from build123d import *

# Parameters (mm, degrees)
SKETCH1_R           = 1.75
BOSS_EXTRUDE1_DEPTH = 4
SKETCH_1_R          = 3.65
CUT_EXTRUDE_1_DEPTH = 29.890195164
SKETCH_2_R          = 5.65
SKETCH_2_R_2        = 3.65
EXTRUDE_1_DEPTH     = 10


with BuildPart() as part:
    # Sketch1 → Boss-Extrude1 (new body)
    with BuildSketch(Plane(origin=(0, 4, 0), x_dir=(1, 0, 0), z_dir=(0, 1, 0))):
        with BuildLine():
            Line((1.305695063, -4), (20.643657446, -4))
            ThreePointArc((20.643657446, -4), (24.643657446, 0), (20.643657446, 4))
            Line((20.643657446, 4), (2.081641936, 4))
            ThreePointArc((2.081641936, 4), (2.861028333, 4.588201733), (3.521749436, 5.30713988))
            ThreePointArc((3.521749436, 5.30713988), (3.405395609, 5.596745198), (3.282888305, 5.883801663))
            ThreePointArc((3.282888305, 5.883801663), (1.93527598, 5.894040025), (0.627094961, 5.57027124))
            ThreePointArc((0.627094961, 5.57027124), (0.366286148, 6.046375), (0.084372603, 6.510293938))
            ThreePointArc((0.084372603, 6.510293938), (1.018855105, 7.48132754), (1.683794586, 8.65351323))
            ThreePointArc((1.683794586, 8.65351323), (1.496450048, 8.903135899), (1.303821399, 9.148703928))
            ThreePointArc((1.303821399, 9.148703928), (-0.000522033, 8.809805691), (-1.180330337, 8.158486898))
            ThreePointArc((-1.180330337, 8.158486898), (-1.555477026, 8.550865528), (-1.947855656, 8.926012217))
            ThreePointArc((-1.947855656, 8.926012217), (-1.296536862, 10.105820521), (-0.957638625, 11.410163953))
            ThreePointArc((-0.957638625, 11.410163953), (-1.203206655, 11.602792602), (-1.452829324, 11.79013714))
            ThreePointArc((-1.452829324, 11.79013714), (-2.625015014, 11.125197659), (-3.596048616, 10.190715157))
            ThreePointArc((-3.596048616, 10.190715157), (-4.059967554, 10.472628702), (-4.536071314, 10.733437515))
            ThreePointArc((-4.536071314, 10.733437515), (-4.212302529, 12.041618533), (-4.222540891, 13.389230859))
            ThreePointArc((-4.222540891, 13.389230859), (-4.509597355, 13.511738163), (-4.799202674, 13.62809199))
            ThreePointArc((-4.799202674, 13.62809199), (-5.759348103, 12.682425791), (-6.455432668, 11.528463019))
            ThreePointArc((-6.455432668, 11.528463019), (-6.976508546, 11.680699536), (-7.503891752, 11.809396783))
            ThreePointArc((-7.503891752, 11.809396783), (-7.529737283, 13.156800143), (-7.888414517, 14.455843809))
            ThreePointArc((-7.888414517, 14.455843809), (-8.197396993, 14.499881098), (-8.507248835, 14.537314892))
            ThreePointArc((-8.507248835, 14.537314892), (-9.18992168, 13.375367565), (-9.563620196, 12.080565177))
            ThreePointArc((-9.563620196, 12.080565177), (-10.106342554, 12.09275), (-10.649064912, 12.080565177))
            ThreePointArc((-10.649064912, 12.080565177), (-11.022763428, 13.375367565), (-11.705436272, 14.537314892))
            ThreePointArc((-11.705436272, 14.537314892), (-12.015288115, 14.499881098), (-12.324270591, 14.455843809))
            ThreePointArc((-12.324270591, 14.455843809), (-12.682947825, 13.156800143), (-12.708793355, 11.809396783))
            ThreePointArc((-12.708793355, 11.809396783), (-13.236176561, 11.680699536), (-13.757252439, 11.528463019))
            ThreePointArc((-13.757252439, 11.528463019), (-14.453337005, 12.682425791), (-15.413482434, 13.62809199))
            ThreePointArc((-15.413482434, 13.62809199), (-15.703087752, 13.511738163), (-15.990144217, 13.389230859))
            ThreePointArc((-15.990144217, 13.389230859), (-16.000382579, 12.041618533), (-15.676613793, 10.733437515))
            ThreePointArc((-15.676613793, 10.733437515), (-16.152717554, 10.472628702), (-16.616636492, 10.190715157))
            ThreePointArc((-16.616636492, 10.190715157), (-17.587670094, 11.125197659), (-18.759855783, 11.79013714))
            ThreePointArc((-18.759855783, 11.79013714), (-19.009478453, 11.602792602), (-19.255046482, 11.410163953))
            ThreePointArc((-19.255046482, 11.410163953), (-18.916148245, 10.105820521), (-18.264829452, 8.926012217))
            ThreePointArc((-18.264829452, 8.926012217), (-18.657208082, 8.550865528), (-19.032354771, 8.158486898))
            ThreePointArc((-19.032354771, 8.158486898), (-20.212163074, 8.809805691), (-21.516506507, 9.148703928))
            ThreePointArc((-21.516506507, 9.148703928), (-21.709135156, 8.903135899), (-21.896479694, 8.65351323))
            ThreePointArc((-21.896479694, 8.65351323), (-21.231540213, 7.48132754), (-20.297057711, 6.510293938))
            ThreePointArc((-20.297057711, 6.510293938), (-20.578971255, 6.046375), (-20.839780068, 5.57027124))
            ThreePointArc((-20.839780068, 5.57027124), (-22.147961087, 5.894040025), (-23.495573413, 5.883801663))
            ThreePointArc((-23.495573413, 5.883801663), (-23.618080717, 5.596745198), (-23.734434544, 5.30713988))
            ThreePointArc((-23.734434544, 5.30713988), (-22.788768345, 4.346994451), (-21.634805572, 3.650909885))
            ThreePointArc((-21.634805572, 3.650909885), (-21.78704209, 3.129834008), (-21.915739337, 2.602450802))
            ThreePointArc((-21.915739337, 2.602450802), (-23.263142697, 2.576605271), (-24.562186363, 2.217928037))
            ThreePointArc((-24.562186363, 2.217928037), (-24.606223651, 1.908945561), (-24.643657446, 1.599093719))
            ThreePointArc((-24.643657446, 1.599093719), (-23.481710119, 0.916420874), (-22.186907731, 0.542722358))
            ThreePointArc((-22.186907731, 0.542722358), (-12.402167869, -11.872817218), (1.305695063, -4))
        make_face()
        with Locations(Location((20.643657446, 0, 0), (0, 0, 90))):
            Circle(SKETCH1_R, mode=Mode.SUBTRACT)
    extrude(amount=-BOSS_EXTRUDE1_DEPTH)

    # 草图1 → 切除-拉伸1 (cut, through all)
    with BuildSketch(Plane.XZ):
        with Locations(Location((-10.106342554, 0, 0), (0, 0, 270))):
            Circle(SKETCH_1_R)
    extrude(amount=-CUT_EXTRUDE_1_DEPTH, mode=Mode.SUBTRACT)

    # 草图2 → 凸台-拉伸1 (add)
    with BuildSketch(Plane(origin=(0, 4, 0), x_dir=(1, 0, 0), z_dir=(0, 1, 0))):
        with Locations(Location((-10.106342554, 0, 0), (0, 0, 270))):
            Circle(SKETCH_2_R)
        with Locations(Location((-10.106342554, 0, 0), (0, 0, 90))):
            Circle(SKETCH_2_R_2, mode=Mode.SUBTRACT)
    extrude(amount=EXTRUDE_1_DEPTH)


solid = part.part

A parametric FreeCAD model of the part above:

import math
import FreeCAD as App
import Part
import Sketcher

V = App.Vector

doc = App.newDocument("Part")
body = doc.addObject("PartDesign::Body", "Body")

sketch1 = body.newObject("Sketcher::SketchObject", "Sketch")
sketch1.AttachmentSupport = (doc.getObject("XZ_Plane"), [""])
sketch1.MapMode = "FlatFace"
sketch1.AttachmentOffset = App.Placement(V(0, 0, -4), App.Rotation())
sketch1.addGeometry([
    Part.LineSegment(V(1.305695, 4, 0), V(20.643657, 4, 0)),
    Part.ArcOfCircle(Part.Circle(V(20.643657, 0, 0), V(0, 0, 1), 4), math.radians(-90), math.radians(90)),
    Part.LineSegment(V(20.643657, -4, 0), V(2.081642, -4, 0)),
    Part.ArcOfCircle(Part.Circle(V(-0.768289, -8.586708, 0), V(0, 0, 1), 5.4), math.radians(37.396512), math.radians(58.14543)),
    Part.ArcOfCircle(Part.Circle(V(-10.106343, 0, 0), V(0, 0, 1), 14.625), math.radians(-23.722744), math.radians(-21.277256)),
    Part.ArcOfCircle(Part.Circle(V(2.568378, -0.531281, 0), V(0, 0, 1), 5.4), math.radians(-111.069299), math.radians(-82.396512)),
    Part.ArcOfCircle(Part.Circle(V(-10.106343, 0, 0), V(0, 0, 1), 12.09275), math.radians(-32.572297), math.radians(-27.427703)),
    Part.ArcOfCircle(Part.Circle(V(-3.308879, -10.710989, 0), V(0, 0, 1), 5.4), math.radians(22.396512), math.radians(51.069299)),
    Part.ArcOfCircle(Part.Circle(V(-10.106342, 0, 0), V(0, 0, 1), 14.625), math.radians(-38.722744), math.radians(-36.277256)),
    Part.ArcOfCircle(Part.Circle(V(1.998992, -3.793637, 0), V(0, 0, 1), 5.4), math.radians(-126.069299), math.radians(-97.396512)),
    Part.ArcOfCircle(Part.Circle(V(-10.106343, 0, 0), V(0, 0, 1), 12.09275), math.radians(-47.572297), math.radians(-42.427703)),
    Part.ArcOfCircle(Part.Circle(V(-6.312705, -12.105334, 0), V(0, 0, 1), 5.4), math.radians(7.396512), math.radians(36.069299)),
    Part.ArcOfCircle(Part.Circle(V(-10.106343, 0.000001, 0), V(0, 0, 1), 14.625001), math.radians(-53.722744), math.radians(-51.277256)),
    Part.ArcOfCircle(Part.Circle(V(0.604647, -6.797463, 0), V(0, 0, 1), 5.4), math.radians(-141.069299), math.radians(-112.396512)),
    Part.ArcOfCircle(Part.Circle(V(-10.106343, 0, 0), V(0, 0, 1), 12.09275), math.radians(-62.572297), math.radians(-57.427703)),
    Part.ArcOfCircle(Part.Circle(V(-9.575061, -12.674721, 0), V(0, 0, 1), 5.4), math.radians(-7.603488), math.radians(21.069299)),
    Part.ArcOfCircle(Part.Circle(V(-10.106342, -0.000001, 0), V(0, 0, 1), 14.624999), math.radians(-68.722744), math.radians(-66.277256)),
    Part.ArcOfCircle(Part.Circle(V(-1.519634, -9.338053, 0), V(0, 0, 1), 5.4), math.radians(-156.069299), math.radians(-127.396512)),
    Part.ArcOfCircle(Part.Circle(V(-10.106343, 0, 0), V(0, 0, 1), 12.09275), math.radians(-77.572297), math.radians(-72.427703)),
    Part.ArcOfCircle(Part.Circle(V(-12.873623, -12.380346, 0), V(0, 0, 1), 5.4), math.radians(-22.603488), math.radians(6.069299)),
    Part.ArcOfCircle(Part.Circle(V(-10.106342, -0.000002, 0), V(0, 0, 1), 14.624998), math.radians(-83.722744), math.radians(-81.277256)),
    Part.ArcOfCircle(Part.Circle(V(-4.229085, -11.242271, 0), V(0, 0, 1), 5.4), math.radians(-171.069299), math.radians(-142.396512)),
    Part.ArcOfCircle(Part.Circle(V(-10.106343, 0, 0), V(0, 0, 1), 12.09275), math.radians(-92.572297), math.radians(-87.427703)),
    Part.ArcOfCircle(Part.Circle(V(-15.9836, -11.242271, 0), V(0, 0, 1), 5.4), math.radians(-37.603488), math.radians(-8.930701)),
    Part.ArcOfCircle(Part.Circle(V(-10.106343, -0.000002, 0), V(0, 0, 1), 14.624998), math.radians(-98.722744), math.radians(-96.277256)),
    Part.ArcOfCircle(Part.Circle(V(-7.339062, -12.380346, 0), V(0, 0, 1), 5.4), math.radians(173.930701), math.radians(202.603488)),
    Part.ArcOfCircle(Part.Circle(V(-10.106343, 0, 0), V(0, 0, 1), 12.09275), math.radians(-107.572297), math.radians(-102.427703)),
    Part.ArcOfCircle(Part.Circle(V(-18.693051, -9.338053, 0), V(0, 0, 1), 5.4), math.radians(-52.603488), math.radians(-23.930701)),
    Part.ArcOfCircle(Part.Circle(V(-10.106342, 0, 0), V(0, 0, 1), 14.625), math.radians(-113.722744), math.radians(-111.277256)),
    Part.ArcOfCircle(Part.Circle(V(-10.637624, -12.674721, 0), V(0, 0, 1), 5.4), math.radians(158.930701), math.radians(187.603488)),
    Part.ArcOfCircle(Part.Circle(V(-10.106343, 0, 0), V(0, 0, 1), 12.09275), math.radians(-122.572297), math.radians(-117.427703)),
    Part.ArcOfCircle(Part.Circle(V(-20.817332, -6.797463, 0), V(0, 0, 1), 5.4), math.radians(-67.603488), math.radians(-38.930701)),
    Part.ArcOfCircle(Part.Circle(V(-10.106344, -0.000001, 0), V(0, 0, 1), 14.624998), math.radians(-128.722744), math.radians(-126.277256)),
    Part.ArcOfCircle(Part.Circle(V(-13.89998, -12.105334, 0), V(0, 0, 1), 5.4), math.radians(143.930701), math.radians(172.603488)),
    Part.ArcOfCircle(Part.Circle(V(-10.106342, 0, 0), V(0, 0, 1), 12.09275), math.radians(-137.572297), math.radians(-132.427703)),
    Part.ArcOfCircle(Part.Circle(V(-22.211677, -3.793637, 0), V(0, 0, 1), 5.4), math.radians(-82.603488), math.radians(-53.930701)),
    Part.ArcOfCircle(Part.Circle(V(-10.106343, 0, 0), V(0, 0, 1), 14.625), math.radians(-143.722744), math.radians(-141.277256)),
    Part.ArcOfCircle(Part.Circle(V(-16.903806, -10.710989, 0), V(0, 0, 1), 5.4), math.radians(128.930701), math.radians(157.603488)),
    Part.ArcOfCircle(Part.Circle(V(-10.106342, 0, 0), V(0, 0, 1), 12.092751), math.radians(-152.572297), math.radians(-147.427703)),
    Part.ArcOfCircle(Part.Circle(V(-22.781063, -0.531281, 0), V(0, 0, 1), 5.4), math.radians(-97.603488), math.radians(-68.930701)),
    Part.ArcOfCircle(Part.Circle(V(-10.106342, 0, 0), V(0, 0, 1), 14.625), math.radians(-158.722744), math.radians(-156.277256)),
    Part.ArcOfCircle(Part.Circle(V(-19.444396, -8.586708, 0), V(0, 0, 1), 5.4), math.radians(113.930701), math.radians(142.603488)),
    Part.ArcOfCircle(Part.Circle(V(-10.106343, 0, 0), V(0, 0, 1), 12.092749), math.radians(-167.572297), math.radians(-162.427702)),
    Part.ArcOfCircle(Part.Circle(V(-22.486688, 2.767281, 0), V(0, 0, 1), 5.4), math.radians(-112.603488), math.radians(-83.930701)),
    Part.ArcOfCircle(Part.Circle(V(-10.10634, 0, 0), V(0, 0, 1), 14.625003), math.radians(-173.722744), math.radians(-171.277256)),
    Part.ArcOfCircle(Part.Circle(V(-21.348613, -5.877257, 0), V(0, 0, 1), 5.4), math.radians(98.930701), math.radians(127.603488)),
    Part.ArcOfCircle(Part.Circle(V(-10.106343, 0, 0), V(0, 0, 1), 12.09275), math.radians(19.315925), math.radians(182.572297)),
    Part.Circle(V(20.643657, 0, 0), V(0, 0, 1), 1.75),
], False)
sketch1.addConstraint([
    Sketcher.Constraint("Coincident", 0, 2, 1, 2),
    Sketcher.Constraint("Coincident", 1, 1, 2, 1),
    Sketcher.Constraint("Coincident", 2, 2, 3, 2),
    Sketcher.Constraint("Coincident", 3, 1, 4, 2),
    Sketcher.Constraint("Coincident", 4, 1, 5, 2),
    Sketcher.Constraint("Coincident", 5, 1, 6, 2),
    Sketcher.Constraint("Coincident", 6, 1, 7, 2),
    Sketcher.Constraint("Coincident", 7, 1, 8, 2),
    Sketcher.Constraint("Coincident", 8, 1, 9, 2),
    Sketcher.Constraint("Coincident", 9, 1, 10, 2),
    Sketcher.Constraint("Coincident", 10, 1, 11, 2),
    Sketcher.Constraint("Coincident", 11, 1, 12, 2),
    Sketcher.Constraint("Coincident", 12, 1, 13, 2),
    Sketcher.Constraint("Coincident", 13, 1, 14, 2),
    Sketcher.Constraint("Coincident", 14, 1, 15, 2),
    Sketcher.Constraint("Coincident", 15, 1, 16, 2),
    Sketcher.Constraint("Coincident", 16, 1, 17, 2),
    Sketcher.Constraint("Coincident", 17, 1, 18, 2),
    Sketcher.Constraint("Coincident", 18, 1, 19, 2),
    Sketcher.Constraint("Coincident", 19, 1, 20, 2),
    Sketcher.Constraint("Coincident", 20, 1, 21, 2),
    Sketcher.Constraint("Coincident", 21, 1, 22, 2),
    Sketcher.Constraint("Coincident", 22, 1, 23, 2),
    Sketcher.Constraint("Coincident", 23, 1, 24, 2),
    Sketcher.Constraint("Coincident", 24, 1, 25, 2),
    Sketcher.Constraint("Coincident", 25, 1, 26, 2),
    Sketcher.Constraint("Coincident", 26, 1, 27, 2),
    Sketcher.Constraint("Coincident", 27, 1, 28, 2),
    Sketcher.Constraint("Coincident", 28, 1, 29, 2),
    Sketcher.Constraint("Coincident", 29, 1, 30, 2),
    Sketcher.Constraint("Coincident", 30, 1, 31, 2),
    Sketcher.Constraint("Coincident", 31, 1, 32, 2),
    Sketcher.Constraint("Coincident", 32, 1, 33, 2),
    Sketcher.Constraint("Coincident", 33, 1, 34, 2),
    Sketcher.Constraint("Coincident", 34, 1, 35, 2),
    Sketcher.Constraint("Coincident", 35, 1, 36, 2),
    Sketcher.Constraint("Coincident", 36, 1, 37, 2),
    Sketcher.Constraint("Coincident", 37, 1, 38, 2),
    Sketcher.Constraint("Coincident", 38, 1, 39, 2),
    Sketcher.Constraint("Coincident", 39, 1, 40, 2),
    Sketcher.Constraint("Coincident", 40, 1, 41, 2),
    Sketcher.Constraint("Coincident", 41, 1, 42, 2),
    Sketcher.Constraint("Coincident", 42, 1, 43, 2),
    Sketcher.Constraint("Coincident", 43, 1, 44, 2),
    Sketcher.Constraint("Coincident", 44, 1, 45, 2),
    Sketcher.Constraint("Coincident", 45, 1, 46, 2),
    Sketcher.Constraint("Coincident", 46, 1, 0, 1),
    Sketcher.Constraint("Horizontal", 0),
    Sketcher.Constraint("Horizontal", 2),
    Sketcher.Constraint("Coincident", 6, 3, 4, 3),
    Sketcher.Constraint("Coincident", 8, 3, 4, 3),
    Sketcher.Constraint("Coincident", 10, 3, 4, 3),
    Sketcher.Constraint("Coincident", 12, 3, 4, 3),
    Sketcher.Constraint("Coincident", 14, 3, 4, 3),
    Sketcher.Constraint("Coincident", 16, 3, 4, 3),
    Sketcher.Constraint("Coincident", 18, 3, 4, 3),
    Sketcher.Constraint("Coincident", 20, 3, 4, 3),
    Sketcher.Constraint("Coincident", 22, 3, 4, 3),
    Sketcher.Constraint("Coincident", 24, 3, 4, 3),
    Sketcher.Constraint("Coincident", 26, 3, 4, 3),
    Sketcher.Constraint("Coincident", 28, 3, 4, 3),
    Sketcher.Constraint("Coincident", 30, 3, 4, 3),
    Sketcher.Constraint("Coincident", 32, 3, 4, 3),
    Sketcher.Constraint("Coincident", 34, 3, 4, 3),
    Sketcher.Constraint("Coincident", 36, 3, 4, 3),
    Sketcher.Constraint("Coincident", 38, 3, 4, 3),
    Sketcher.Constraint("Coincident", 40, 3, 4, 3),
    Sketcher.Constraint("Coincident", 42, 3, 4, 3),
    Sketcher.Constraint("Coincident", 44, 3, 4, 3),
    Sketcher.Constraint("Coincident", 46, 3, 4, 3),
    Sketcher.Constraint("Coincident", 47, 3, 1, 3),
    Sketcher.Constraint("PointOnObject", 1, 3, -1),
    Sketcher.Constraint("PointOnObject", 4, 3, -1),
    Sketcher.Constraint("Radius", 1, 4.0),
    Sketcher.Constraint("Diameter", 47, 3.5),
    Sketcher.Constraint("Radius", 3, 5.4),
    Sketcher.Constraint("Radius", 5, 5.4),
    Sketcher.Constraint("Radius", 7, 5.4),
    Sketcher.Constraint("Radius", 9, 5.4),
    Sketcher.Constraint("Radius", 11, 5.4),
    Sketcher.Constraint("Radius", 13, 5.4),
    Sketcher.Constraint("Radius", 15, 5.4),
    Sketcher.Constraint("Radius", 17, 5.4),
    Sketcher.Constraint("Radius", 19, 5.4),
    Sketcher.Constraint("Radius", 21, 5.4),
    Sketcher.Constraint("Radius", 23, 5.4),
    Sketcher.Constraint("Radius", 25, 5.4),
    Sketcher.Constraint("Radius", 27, 5.4),
    Sketcher.Constraint("Radius", 29, 5.4),
    Sketcher.Constraint("Radius", 31, 5.4),
    Sketcher.Constraint("Radius", 33, 5.4),
    Sketcher.Constraint("Radius", 35, 5.4),
    Sketcher.Constraint("Radius", 37, 5.4),
    Sketcher.Constraint("Radius", 39, 5.4),
    Sketcher.Constraint("Radius", 41, 5.4),
    Sketcher.Constraint("Radius", 43, 5.4),
    Sketcher.Constraint("Radius", 45, 5.4),
    Sketcher.Constraint("Radius", 4, 14.625),
    Sketcher.Constraint("Radius", 8, 14.625),
    Sketcher.Constraint("Radius", 12, 14.625001),
    Sketcher.Constraint("Radius", 16, 14.624999),
    Sketcher.Constraint("Radius", 20, 14.624998),
    Sketcher.Constraint("Radius", 24, 14.624998),
    Sketcher.Constraint("Radius", 28, 14.625),
    Sketcher.Constraint("Radius", 32, 14.624998),
    Sketcher.Constraint("Radius", 36, 14.625),
    Sketcher.Constraint("Radius", 40, 14.625),
    Sketcher.Constraint("Radius", 6, 12.09275),
    Sketcher.Constraint("Radius", 10, 12.09275),
    Sketcher.Constraint("Radius", 14, 12.09275),
    Sketcher.Constraint("Radius", 18, 12.09275),
    Sketcher.Constraint("Radius", 22, 12.09275),
    Sketcher.Constraint("Radius", 26, 12.09275),
    Sketcher.Constraint("Radius", 30, 12.09275),
    Sketcher.Constraint("Radius", 34, 12.09275),
    Sketcher.Constraint("Radius", 38, 12.092751),
    Sketcher.Constraint("Radius", 42, 12.092749),
    Sketcher.Constraint("Radius", 46, 12.09275),
    Sketcher.Constraint("Radius", 44, 14.625003),
    Sketcher.Constraint("DistanceX", 23, 3, -1, 1, 15.9836),
    Sketcher.Constraint("DistanceY", 4, 1, -1, 1, 5.883802),
    Sketcher.Constraint("DistanceY", 39, 1, -1, 1, 5.883802),
    Sketcher.Constraint("DistanceX", 0, 1, 0, 2, 19.337962),
    Sketcher.Constraint("DistanceX", 2, 2, 2, 1, 18.562016),
    Sketcher.Constraint("DistanceX", 3, 3, -1, 1, 0.768289),
    Sketcher.Constraint("DistanceY", 3, 3, -1, 1, 8.586708),
    Sketcher.Constraint("DistanceY", 5, 3, -1, 1, 0.531281),
    Sketcher.Constraint("DistanceX", 7, 3, -1, 1, 3.308879),
    Sketcher.Constraint("DistanceY", 7, 3, -1, 1, 10.710989),
    Sketcher.Constraint("DistanceX", -1, 1, 9, 3, 1.998992),
    Sketcher.Constraint("DistanceX", 15, 3, -1, 1, 9.575061),
    Sketcher.Constraint("DistanceY", 15, 3, -1, 1, 12.674721),
    Sketcher.Constraint("DistanceY", 21, 3, -1, 1, 11.242271),
    Sketcher.Constraint("DistanceY", 23, 3, -1, 1, 11.242271),
    Sketcher.Constraint("DistanceX", 25, 3, -1, 1, 7.339062),
    Sketcher.Constraint("DistanceX", 27, 3, -1, 1, 18.693051),
    Sketcher.Constraint("DistanceY", 29, 3, -1, 1, 12.674721),
    Sketcher.Constraint("DistanceX", 31, 3, -1, 1, 20.817332),
    Sketcher.Constraint("DistanceX", 33, 3, -1, 1, 13.89998),
    Sketcher.Constraint("DistanceY", 37, 3, -1, 1, 10.710989),
    Sketcher.Constraint("DistanceY", 39, 3, -1, 1, 0.531281),
    Sketcher.Constraint("DistanceY", 41, 3, -1, 1, 8.586708),
    Sketcher.Constraint("DistanceX", 43, 3, -1, 1, 22.486688),
    Sketcher.Constraint("DistanceY", -1, 1, 43, 3, 2.767281),
    Sketcher.Constraint("DistanceX", 44, 3, -1, 1, 10.10634),
    Sketcher.Constraint("DistanceX", -1, 1, 8, 1, 1.303821),
    Sketcher.Constraint("DistanceX", 11, 1, -1, 1, 0.957639),
    Sketcher.Constraint("DistanceX", 12, 1, -1, 1, 1.452829),
    Sketcher.Constraint("DistanceX", 13, 1, -1, 1, 3.596049),
    Sketcher.Constraint("DistanceY", 16, 1, -1, 1, 13.628092),
    Sketcher.Constraint("DistanceX", 18, 1, -1, 1, 7.503892),
    Sketcher.Constraint("DistanceX", 20, 1, -1, 1, 8.507249),
    Sketcher.Constraint("DistanceX", 24, 1, -1, 1, 12.324271),
    Sketcher.Constraint("DistanceY", 27, 1, -1, 1, 13.628092),
    Sketcher.Constraint("DistanceY", 28, 1, -1, 1, 13.389231),
    Sketcher.Constraint("DistanceX", 33, 1, -1, 1, 18.264829),
    Sketcher.Constraint("DistanceX", 36, 1, -1, 1, 21.89648),
    Sketcher.Constraint("DistanceY", 40, 1, -1, 1, 5.30714),
    Sketcher.Constraint("DistanceX", -1, 1, 1, 3, 20.643657),
    Sketcher.Constraint("DistanceX", 11, 3, -1, 1, 6.312705),
    Sketcher.Constraint("DistanceX", 17, 3, -1, 1, 1.519634),
    Sketcher.Constraint("DistanceX", 19, 3, -1, 1, 12.873623),
    Sketcher.Constraint("DistanceY", 31, 3, -1, 1, 6.797463),
    Sketcher.Constraint("DistanceX", 35, 3, -1, 1, 22.211677),
    Sketcher.Constraint("DistanceY", 35, 3, -1, 1, 3.793637),
    Sketcher.Constraint("DistanceX", 45, 3, -1, 1, 21.348613),
    Sketcher.Constraint("DistanceY", 45, 3, -1, 1, 5.877257),
])
pad1 = body.newObject("PartDesign::Pad", "Pad")
pad1.Profile = sketch1
pad1.Length = 4

sketch2 = body.newObject("Sketcher::SketchObject", "Sketch001")
sketch2.AttachmentSupport = (doc.getObject("XZ_Plane"), [""])
sketch2.MapMode = "FlatFace"
sketch2.addGeometry(Part.Circle(V(-10.1, 0, 0), V(0, 0, 1), 3.6), False)
sketch2.addConstraint([
    Sketcher.Constraint("PointOnObject", 0, 3, -1),
    Sketcher.Constraint("Diameter", 0, 7.3),
    Sketcher.Constraint("DistanceX", 0, 3, -1, 1, 10.106343),
])
pocket1 = body.newObject("PartDesign::Pocket", "Pocket")
pocket1.Profile = sketch2
pocket1.Type = "ThroughAll"

sketch3 = body.newObject("Sketcher::SketchObject", "Sketch002")
sketch3.AttachmentSupport = (doc.getObject("XZ_Plane"), [""])
sketch3.MapMode = "FlatFace"
sketch3.AttachmentOffset = App.Placement(V(0, 0, -4), App.Rotation())
sketch3.addGeometry([
    Part.Circle(V(-10.1, 0, 0), V(0, 0, 1), 5.7),
    Part.Circle(V(-10.1, 0, 0), V(0, 0, 1), 3.6),
], False)
sketch3.addConstraint([
    Sketcher.Constraint("Coincident", 1, 3, 0, 3),
    Sketcher.Constraint("PointOnObject", 0, 3, -1),
    Sketcher.Constraint("Diameter", 0, 11.3),
    Sketcher.Constraint("Diameter", 1, 7.3),
    Sketcher.Constraint("DistanceX", 0, 3, -1, 1, 10.106343),
])
pad2 = body.newObject("PartDesign::Pad", "Pad001")
pad2.Profile = sketch3
pad2.Length = 10
pad2.Reversed = True

doc.recompute()
